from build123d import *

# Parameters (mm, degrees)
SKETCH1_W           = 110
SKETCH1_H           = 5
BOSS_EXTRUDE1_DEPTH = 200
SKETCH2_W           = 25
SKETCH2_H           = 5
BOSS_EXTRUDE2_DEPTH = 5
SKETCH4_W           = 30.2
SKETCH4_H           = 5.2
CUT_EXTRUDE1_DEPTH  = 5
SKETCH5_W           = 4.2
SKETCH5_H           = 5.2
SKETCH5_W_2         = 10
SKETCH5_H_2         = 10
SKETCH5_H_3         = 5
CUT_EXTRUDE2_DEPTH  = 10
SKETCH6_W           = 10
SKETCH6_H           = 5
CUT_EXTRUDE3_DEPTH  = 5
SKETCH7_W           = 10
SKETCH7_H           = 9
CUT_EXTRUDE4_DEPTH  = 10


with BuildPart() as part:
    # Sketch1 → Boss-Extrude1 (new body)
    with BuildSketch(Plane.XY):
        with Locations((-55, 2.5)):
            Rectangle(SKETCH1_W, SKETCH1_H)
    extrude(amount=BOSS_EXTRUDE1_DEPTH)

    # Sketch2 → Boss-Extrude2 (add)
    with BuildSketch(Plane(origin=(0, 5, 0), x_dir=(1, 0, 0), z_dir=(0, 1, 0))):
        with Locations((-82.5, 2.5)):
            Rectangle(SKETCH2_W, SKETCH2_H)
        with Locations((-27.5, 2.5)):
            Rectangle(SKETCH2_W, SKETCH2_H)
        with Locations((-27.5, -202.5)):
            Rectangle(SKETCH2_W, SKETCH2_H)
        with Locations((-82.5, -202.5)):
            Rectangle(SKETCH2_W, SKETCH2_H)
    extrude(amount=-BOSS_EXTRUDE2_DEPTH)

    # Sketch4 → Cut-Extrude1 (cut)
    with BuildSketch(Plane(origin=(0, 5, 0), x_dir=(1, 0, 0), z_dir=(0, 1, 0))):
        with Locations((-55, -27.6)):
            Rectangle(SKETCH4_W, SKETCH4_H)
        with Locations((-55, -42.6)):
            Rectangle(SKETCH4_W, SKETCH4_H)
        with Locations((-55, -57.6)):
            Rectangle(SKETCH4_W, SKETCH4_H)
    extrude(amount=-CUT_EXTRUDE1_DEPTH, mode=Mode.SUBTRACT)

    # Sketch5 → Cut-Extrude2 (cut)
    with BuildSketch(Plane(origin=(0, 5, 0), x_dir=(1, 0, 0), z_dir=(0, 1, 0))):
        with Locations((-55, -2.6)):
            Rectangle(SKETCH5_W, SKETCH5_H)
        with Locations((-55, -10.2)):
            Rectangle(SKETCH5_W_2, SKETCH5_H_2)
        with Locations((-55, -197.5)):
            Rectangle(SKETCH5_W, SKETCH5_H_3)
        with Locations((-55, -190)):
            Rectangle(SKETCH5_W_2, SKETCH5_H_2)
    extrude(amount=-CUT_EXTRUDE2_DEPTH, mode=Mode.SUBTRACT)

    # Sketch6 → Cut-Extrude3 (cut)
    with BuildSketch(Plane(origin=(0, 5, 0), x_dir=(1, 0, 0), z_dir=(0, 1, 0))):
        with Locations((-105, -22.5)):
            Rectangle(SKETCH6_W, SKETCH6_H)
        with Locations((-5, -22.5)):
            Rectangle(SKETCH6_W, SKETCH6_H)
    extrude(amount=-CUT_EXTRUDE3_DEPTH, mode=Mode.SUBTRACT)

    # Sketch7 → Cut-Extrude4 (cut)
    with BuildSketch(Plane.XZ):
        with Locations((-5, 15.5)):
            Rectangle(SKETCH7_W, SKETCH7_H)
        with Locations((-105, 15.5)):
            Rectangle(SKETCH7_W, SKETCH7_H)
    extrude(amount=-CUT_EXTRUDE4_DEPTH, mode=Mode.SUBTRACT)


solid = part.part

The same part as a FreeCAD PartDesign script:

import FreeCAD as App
import Part
import Sketcher
Q = App.Units.Quantity

doc = App.newDocument("Part")
body = doc.addObject("PartDesign::Body", "Body")

sketch1 = doc.addObject("Sketcher::SketchObject", "Sketch")
body.addObject(sketch1)
sketch1.AttachmentSupport = (doc.XY_Plane, [""])
sketch1.MapMode = "FlatFace"
sketch1.addGeometry(Part.LineSegment(App.Vector(-110, 5, 0), App.Vector(-110, 0, 0)), False)
sketch1.addGeometry(Part.LineSegment(App.Vector(-110, 0, 0), App.Vector(0, 0, 0)), False)
sketch1.addGeometry(Part.LineSegment(App.Vector(0, 0, 0), App.Vector(0, 5, 0)), False)
sketch1.addGeometry(Part.LineSegment(App.Vector(0, 5, 0), App.Vector(-110, 5, 0)), False)
sketch1.addConstraint(Sketcher.Constraint("Coincident", 0, 2, 1, 1))
sketch1.addConstraint(Sketcher.Constraint("Coincident", 1, 2, 2, 1))
sketch1.addConstraint(Sketcher.Constraint("Coincident", 2, 2, 3, 1))
sketch1.addConstraint(Sketcher.Constraint("Coincident", 3, 2, 0, 1))
sketch1.addConstraint(Sketcher.Constraint("Vertical", 0))
sketch1.addConstraint(Sketcher.Constraint("Horizontal", 1))
sketch1.addConstraint(Sketcher.Constraint("Vertical", 2))
sketch1.addConstraint(Sketcher.Constraint("Horizontal", 3))
sketch1.addConstraint(Sketcher.Constraint("Coincident", 1, 2, -1, 1))
sketch1.addConstraint(Sketcher.Constraint("DistanceX", 1, 1, 1, 2, Q("110 mm")))
sketch1.addConstraint(Sketcher.Constraint("DistanceY", 0, 2, 0, 1, Q("5 mm")))
pad1 = doc.addObject("PartDesign::Pad", "Pad")
body.addObject(pad1)
pad1.Profile = sketch1
pad1.Length = 200

sketch2 = doc.addObject("Sketcher::SketchObject", "Sketch001")
body.addObject(sketch2)
sketch2.AttachmentSupport = (doc.XZ_Plane, [""])
sketch2.MapMode = "FlatFace"
sketch2.AttachmentOffset = App.Placement(App.Vector(0, 0, -5), App.Rotation())
sketch2.addGeometry(Part.LineSegment(App.Vector(-95, -5, 0), App.Vector(-95, 0, 0)), False)
sketch2.addGeometry(Part.LineSegment(App.Vector(-95, 0, 0), App.Vector(-70, 0, 0)), False)
sketch2.addGeometry(Part.LineSegment(App.Vector(-70, 0, 0), App.Vector(-70, -5, 0)), False)
sketch2.addGeometry(Part.LineSegment(App.Vector(-70, -5, 0), App.Vector(-95, -5, 0)), False)
sketch2.addGeometry(Part.LineSegment(App.Vector(-40, -5, 0), App.Vector(-40, 0, 0)), False)
sketch2.addGeometry(Part.LineSegment(App.Vector(-40, 0, 0), App.Vector(-15, 0, 0)), False)
sketch2.addGeometry(Part.LineSegment(App.Vector(-15, 0, 0), App.Vector(-15, -5, 0)), False)
sketch2.addGeometry(Part.LineSegment(App.Vector(-15, -5, 0), App.Vector(-40, -5, 0)), False)
sketch2.addGeometry(Part.LineSegment(App.Vector(-40, 200, 0), App.Vector(-40, 205, 0)), False)
sketch2.addGeometry(Part.LineSegment(App.Vector(-40, 205, 0), App.Vector(-15, 205, 0)), False)
sketch2.addGeometry(Part.LineSegment(App.Vector(-15, 205, 0), App.Vector(-15, 200, 0)), False)
sketch2.addGeometry(Part.LineSegment(App.Vector(-15, 200, 0), App.Vector(-40, 200, 0)), False)
sketch2.addGeometry(Part.LineSegment(App.Vector(-95, 200, 0), App.Vector(-95, 205, 0)), False)
sketch2.addGeometry(Part.LineSegment(App.Vector(-95, 205, 0), App.Vector(-70, 205, 0)), False)
sketch2.addGeometry(Part.LineSegment(App.Vector(-70, 205, 0), App.Vector(-70, 200, 0)), False)
sketch2.addGeometry(Part.LineSegment(App.Vector(-70, 200, 0), App.Vector(-95, 200, 0)), False)
sketch2.addConstraint(Sketcher.Constraint("Coincident", 0, 2, 1, 1))
sketch2.addConstraint(Sketcher.Constraint("Coincident", 1, 2, 2, 1))
sketch2.addConstraint(Sketcher.Constraint("Coincident", 2, 2, 3, 1))
sketch2.addConstraint(Sketcher.Constraint("Coincident", 3, 2, 0, 1))
sketch2.addConstraint(Sketcher.Constraint("Coincident", 4, 2, 5, 1))
sketch2.addConstraint(Sketcher.Constraint("Coincident", 5, 2, 6, 1))
sketch2.addConstraint(Sketcher.Constraint("Coincident", 6, 2, 7, 1))
sketch2.addConstraint(Sketcher.Constraint("Coincident", 7, 2, 4, 1))
sketch2.addConstraint(Sketcher.Constraint("Coincident", 8, 2, 9, 1))
sketch2.addConstraint(Sketcher.Constraint("Coincident", 9, 2, 10, 1))
sketch2.addConstraint(Sketcher.Constraint("Coincident", 10, 2, 11, 1))
sketch2.addConstraint(Sketcher.Constraint("Coincident", 11, 2, 8, 1))
sketch2.addConstraint(Sketcher.Constraint("Coincident", 12, 2, 13, 1))
sketch2.addConstraint(Sketcher.Constraint("Coincident", 13, 2, 14, 1))
sketch2.addConstraint(Sketcher.Constraint("Coincident", 14, 2, 15, 1))
sketch2.addConstraint(Sketcher.Constraint("Coincident", 15, 2, 12, 1))
sketch2.addConstraint(Sketcher.Constraint("Vertical", 0))
sketch2.addConstraint(Sketcher.Constraint("Horizontal", 1))
sketch2.addConstraint(Sketcher.Constraint("Vertical", 2))
sketch2.addConstraint(Sketcher.Constraint("Horizontal", 3))
sketch2.addConstraint(Sketcher.Constraint("Vertical", 4))
sketch2.addConstraint(Sketcher.Constraint("Horizontal", 5))
sketch2.addConstraint(Sketcher.Constraint("Vertical", 6))
sketch2.addConstraint(Sketcher.Constraint("Horizontal", 7))
sketch2.addConstraint(Sketcher.Constraint("Vertical", 8))
sketch2.addConstraint(Sketcher.Constraint("Horizontal", 9))
sketch2.addConstraint(Sketcher.Constraint("Vertical", 10))
sketch2.addConstraint(Sketcher.Constraint("Horizontal", 11))
sketch2.addConstraint(Sketcher.Constraint("Vertical", 12))
sketch2.addConstraint(Sketcher.Constraint("Horizontal", 13))
sketch2.addConstraint(Sketcher.Constraint("Vertical", 14))
sketch2.addConstraint(Sketcher.Constraint("Horizontal", 15))
sketch2.addConstraint(Sketcher.Constraint("PointOnObject", 0, 2, -1))
sketch2.addConstraint(Sketcher.Constraint("PointOnObject", 4, 2, -1))
sketch2.addConstraint(Sketcher.Constraint("Horizontal", 3, 2, 6, 2))
sketch2.addConstraint(Sketcher.Constraint("Horizontal", 9, 2, 12, 2))
sketch2.addConstraint(Sketcher.Constraint("Horizontal", 11, 2, 14, 2))
sketch2.addConstraint(Sketcher.Constraint("Vertical", 7, 2, 8, 2))
sketch2.addConstraint(Sketcher.Constraint("Vertical", 6, 2, 9, 2))
sketch2.addConstraint(Sketcher.Constraint("Vertical", 3, 2, 12, 2))
sketch2.addConstraint(Sketcher.Constraint("Vertical", 2, 2, 13, 2))
sketch2.addConstraint(Sketcher.Constraint("Equal", 3, 5))
sketch2.addConstraint(Sketcher.Constraint("Equal", 6, 8))
sketch2.addConstraint(Sketcher.Constraint("DistanceX", 1, 1, 1, 2, Q("25 mm")))
sketch2.addConstraint(Sketcher.Constraint("DistanceY", 0, 1, 0, 2, Q("5 mm")))
sketch2.addConstraint(Sketcher.Constraint("DistanceX", 0, 2, -1, 1, Q("95 mm")))
sketch2.addConstraint(Sketcher.Constraint("DistanceX", 4, 2, -1, 1, Q("40 mm")))
sketch2.addConstraint(Sketcher.Constraint("DistanceY", -1, 1, 8, 2, Q("205 mm")))
pad2 = doc.addObject("PartDesign::Pad", "Pad001")
body.addObject(pad2)
pad2.Profile = sketch2
pad2.Length = 5

sketch3 = doc.addObject("Sketcher::SketchObject", "Sketch002")
body.addObject(sketch3)
sketch3.AttachmentSupport = (doc.XZ_Plane, [""])
sketch3.MapMode = "FlatFace"
sketch3.AttachmentOffset = App.Placement(App.Vector(0, 0, -5), App.Rotation())
sketch3.addGeometry(Part.LineSegment(App.Vector(-70, 25, 0), App.Vector(-70, 30, 0)), False)
sketch3.addGeometry(Part.LineSegment(App.Vector(-70, 30, 0), App.Vector(-40, 30, 0)), False)
sketch3.addGeometry(Part.LineSegment(App.Vector(-40, 30, 0), App.Vector(-40, 25, 0)), False)
sketch3.addGeometry(Part.LineSegment(App.Vector(-40, 25, 0), App.Vector(-70, 25, 0)), False)
sketch3.addGeometry(Part.LineSegment(App.Vector(-70, 40, 0), App.Vector(-70, 45, 0)), False)
sketch3.addGeometry(Part.LineSegment(App.Vector(-70, 45, 0), App.Vector(-40, 45, 0)), False)
sketch3.addGeometry(Part.LineSegment(App.Vector(-40, 45, 0), App.Vector(-40, 40, 0)), False)
sketch3.addGeometry(Part.LineSegment(App.Vector(-40, 40, 0), App.Vector(-70, 40, 0)), False)
sketch3.addGeometry(Part.LineSegment(App.Vector(-70, 55, 0), App.Vector(-70, 60, 0)), False)
sketch3.addGeometry(Part.LineSegment(App.Vector(-70, 60, 0), App.Vector(-40, 60, 0)), False)
sketch3.addGeometry(Part.LineSegment(App.Vector(-40, 60, 0), App.Vector(-40, 55, 0)), False)
sketch3.addGeometry(Part.LineSegment(App.Vector(-40, 55, 0), App.Vector(-70, 55, 0)), False)
sketch3.addConstraint(Sketcher.Constraint("Coincident", 0, 2, 1, 1))
sketch3.addConstraint(Sketcher.Constraint("Coincident", 1, 2, 2, 1))
sketch3.addConstraint(Sketcher.Constraint("Coincident", 2, 2, 3, 1))
sketch3.addConstraint(Sketcher.Constraint("Coincident", 3, 2, 0, 1))
sketch3.addConstraint(Sketcher.Constraint("Coincident", 4, 2, 5, 1))
sketch3.addConstraint(Sketcher.Constraint("Coincident", 5, 2, 6, 1))
sketch3.addConstraint(Sketcher.Constraint("Coincident", 6, 2, 7, 1))
sketch3.addConstraint(Sketcher.Constraint("Coincident", 7, 2, 4, 1))
sketch3.addConstraint(Sketcher.Constraint("Coincident", 8, 2, 9, 1))
sketch3.addConstraint(Sketcher.Constraint("Coincident", 9, 2, 10, 1))
sketch3.addConstraint(Sketcher.Constraint("Coincident", 10, 2, 11, 1))
sketch3.addConstraint(Sketcher.Constraint("Coincident", 11, 2, 8, 1))
sketch3.addConstraint(Sketcher.Constraint("Vertical", 0))
sketch3.addConstraint(Sketcher.Constraint("Horizontal", 1))
sketch3.addConstraint(Sketcher.Constraint("Vertical", 2))
sketch3.addConstraint(Sketcher.Constraint("Horizontal", 3))
sketch3.addConstraint(Sketcher.Constraint("Vertical", 4))
sketch3.addConstraint(Sketcher.Constraint("Horizontal", 5))
sketch3.addConstraint(Sketcher.Constraint("Vertical", 6))
sketch3.addConstraint(Sketcher.Constraint("Horizontal", 7))
sketch3.addConstraint(Sketcher.Constraint("Vertical", 8))
sketch3.addConstraint(Sketcher.Constraint("Horizontal", 9))
sketch3.addConstraint(Sketcher.Constraint("Vertical", 10))
sketch3.addConstraint(Sketcher.Constraint("Horizontal", 11))
sketch3.addConstraint(Sketcher.Constraint("Vertical", 3, 2, 4, 2))
sketch3.addConstraint(Sketcher.Constraint("Vertical", 2, 2, 5, 2))
sketch3.addConstraint(Sketcher.Constraint("Vertical", 7, 2, 8, 2))
sketch3.addConstraint(Sketcher.Constraint("Vertical", 6, 2, 9, 2))
sketch3.addConstraint(Sketcher.Constraint("Equal", 2, 4))
sketch3.addConstraint(Sketcher.Constraint("Equal", 6, 8))
sketch3.addConstraint(Sketcher.Constraint("DistanceX", 1, 1, 1, 2, Q("30.2 mm")))
sketch3.addConstraint(Sketcher.Constraint("DistanceY", 0, 1, 0, 2, Q("5.2 mm")))
sketch3.addConstraint(Sketcher.Constraint("DistanceY", -1, 1, 2, 2, Q("25 mm")))
sketch3.addConstraint(Sketcher.Constraint("DistanceY", -1, 1, 6, 2, Q("40 mm")))
sketch3.addConstraint(Sketcher.Constraint("DistanceY", -1, 1, 10, 2, Q("55 mm")))
sketch3.addConstraint(Sketcher.Constraint("DistanceX", 0, 2, -1, 1, Q("70.1 mm")))
pocket1 = doc.addObject("PartDesign::Pocket", "Pocket")
body.addObject(pocket1)
pocket1.Profile = sketch3
pocket1.Length = 5
pocket1.Reversed = True

sketch4 = doc.addObject("Sketcher::SketchObject", "Sketch003")
body.addObject(sketch4)
sketch4.AttachmentSupport = (doc.XZ_Plane, [""])
sketch4.MapMode = "FlatFace"
sketch4.AttachmentOffset = App.Placement(App.Vector(0, 0, -5), App.Rotation())
sketch4.addGeometry(Part.LineSegment(App.Vector(-57.1, 0, 0), App.Vector(-57.1, 5.2, 0)), False)
sketch4.addGeometry(Part.LineSegment(App.Vector(-57.1, 5.2, 0), App.Vector(-60, 5.2, 0)), False)
sketch4.addGeometry(Part.LineSegment(App.Vector(-60, 5.2, 0), App.Vector(-60, 15.2, 0)), False)
sketch4.addGeometry(Part.LineSegment(App.Vector(-60, 15.2, 0), App.Vector(-50, 15.2, 0)), False)
sketch4.addGeometry(Part.LineSegment(App.Vector(-50, 15.2, 0), App.Vector(-50, 5.2, 0)), False)
sketch4.addGeometry(Part.LineSegment(App.Vector(-50, 5.2, 0), App.Vector(-52.9, 5.2, 0)), False)
sketch4.addGeometry(Part.LineSegment(App.Vector(-52.9, 5.2, 0), App.Vector(-52.9, 0, 0)), False)
sketch4.addGeometry(Part.LineSegment(App.Vector(-52.9, 0, 0), App.Vector(-57.1, 0, 0)), False)
sketch4.addGeometry(Part.LineSegment(App.Vector(-57.1, 195, 0), App.Vector(-57.1, 200, 0)), False)
sketch4.addGeometry(Part.LineSegment(App.Vector(-57.1, 200, 0), App.Vector(-52.9, 200, 0)), False)
sketch4.addGeometry(Part.LineSegment(App.Vector(-52.9, 200, 0), App.Vector(-52.9, 195, 0)), False)
sketch4.addGeometry(Part.LineSegment(App.Vector(-52.9, 195, 0), App.Vector(-50, 195, 0)), False)
sketch4.addGeometry(Part.LineSegment(App.Vector(-50, 195, 0), App.Vector(-50, 185, 0)), False)
sketch4.addGeometry(Part.LineSegment(App.Vector(-50, 185, 0), App.Vector(-60, 185, 0)), False)
sketch4.addGeometry(Part.LineSegment(App.Vector(-60, 185, 0), App.Vector(-60, 195, 0)), False)
sketch4.addGeometry(Part.LineSegment(App.Vector(-60, 195, 0), App.Vector(-57.1, 195, 0)), False)
sketch4.addConstraint(Sketcher.Constraint("Coincident", 0, 2, 1, 1))
sketch4.addConstraint(Sketcher.Constraint("Coincident", 1, 2, 2, 1))
sketch4.addConstraint(Sketcher.Constraint("Coincident", 2, 2, 3, 1))
sketch4.addConstraint(Sketcher.Constraint("Coincident", 3, 2, 4, 1))
sketch4.addConstraint(Sketcher.Constraint("Coincident", 4, 2, 5, 1))
sketch4.addConstraint(Sketcher.Constraint("Coincident", 5, 2, 6, 1))
sketch4.addConstraint(Sketcher.Constraint("Coincident", 6, 2, 7, 1))
sketch4.addConstraint(Sketcher.Constraint("Coincident", 7, 2, 0, 1))
sketch4.addConstraint(Sketcher.Constraint("Coincident", 8, 2, 9, 1))
sketch4.addConstraint(Sketcher.Constraint("Coincident", 9, 2, 10, 1))
sketch4.addConstraint(Sketcher.Constraint("Coincident", 10, 2, 11, 1))
sketch4.addConstraint(Sketcher.Constraint("Coincident", 11, 2, 12, 1))
sketch4.addConstraint(Sketcher.Constraint("Coincident", 12, 2, 13, 1))
sketch4.addConstraint(Sketcher.Constraint("Coincident", 13, 2, 14, 1))
sketch4.addConstraint(Sketcher.Constraint("Coincident", 14, 2, 15, 1))
sketch4.addConstraint(Sketcher.Constraint("Coincident", 15, 2, 8, 1))
sketch4.addConstraint(Sketcher.Constraint("Vertical", 0))
sketch4.addConstraint(Sketcher.Constraint("Horizontal", 1))
sketch4.addConstraint(Sketcher.Constraint("Vertical", 2))
sketch4.addConstraint(Sketcher.Constraint("Horizontal", 3))
sketch4.addConstraint(Sketcher.Constraint("Vertical", 4))
sketch4.addConstraint(Sketcher.Constraint("Horizontal", 5))
sketch4.addConstraint(Sketcher.Constraint("Vertical", 6))
sketch4.addConstraint(Sketcher.Constraint("Horizontal", 7))
sketch4.addConstraint(Sketcher.Constraint("Vertical", 8))
sketch4.addConstraint(Sketcher.Constraint("Horizontal", 9))
sketch4.addConstraint(Sketcher.Constraint("Vertical", 10))
sketch4.addConstraint(Sketcher.Constraint("Horizontal", 11))
sketch4.addConstraint(Sketcher.Constraint("Vertical", 12))
sketch4.addConstraint(Sketcher.Constraint("Horizontal", 13))
sketch4.addConstraint(Sketcher.Constraint("Vertical", 14))
sketch4.addConstraint(Sketcher.Constraint("Horizontal", 15))
sketch4.addConstraint(Sketcher.Constraint("PointOnObject", 6, 2, -1))
sketch4.addConstraint(Sketcher.Constraint("Horizontal", 1, 2, 4, 2))
sketch4.addConstraint(Sketcher.Constraint("Horizontal", 11, 2, 14, 2))
sketch4.addConstraint(Sketcher.Constraint("Vertical", 7, 2, 8, 2))
sketch4.addConstraint(Sketcher.Constraint("Vertical", 6, 2, 9, 2))
sketch4.addConstraint(Sketcher.Constraint("Vertical", 4, 2, 11, 2))
sketch4.addConstraint(Sketcher.Constraint("Vertical", 2, 2, 13, 2))
sketch4.addConstraint(Sketcher.Constraint("Equal", 1, 5))
sketch4.addConstraint(Sketcher.Constraint("Equal", 13, 2))
sketch4.addConstraint(Sketcher.Constraint("Equal", 4, 12))
sketch4.addConstraint(Sketcher.Constraint("DistanceX", 3, 1, 3, 2, Q("10 mm")))
sketch4.addConstraint(Sketcher.Constraint("DistanceY", 8, 1, 8, 2, Q("5 mm")))
sketch4.addConstraint(Sketcher.Constraint("DistanceX", 1, 2, 1, 1, Q("2.9 mm")))
sketch4.addConstraint(Sketcher.Constraint("DistanceY", 0, 1, 0, 2, Q("5.2 mm")))
sketch4.addConstraint(Sketcher.Constraint("DistanceX", 1, 2, -1, 1, Q("60 mm")))
sketch4.addConstraint(Sketcher.Constraint("DistanceY", -1, 1, 8, 2, Q("200 mm")))
pocket2 = doc.addObject("PartDesign::Pocket", "Pocket001")
body.addObject(pocket2)
pocket2.Profile = sketch4
pocket2.Length = 10
pocket2.Reversed = True

sketch5 = doc.addObject("Sketcher::SketchObject", "Sketch004")
body.addObject(sketch5)
sketch5.AttachmentSupport = (doc.XZ_Plane, [""])
sketch5.MapMode = "FlatFace"
sketch5.AttachmentOffset = App.Placement(App.Vector(0, 0, -5), App.Rotation())
sketch5.addGeometry(Part.LineSegment(App.Vector(-110, 20, 0), App.Vector(-110, 25, 0)), False)
sketch5.addGeometry(Part.LineSegment(App.Vector(-110, 25, 0), App.Vector(-100, 25, 0)), False)
sketch5.addGeometry(Part.LineSegment(App.Vector(-100, 25, 0), App.Vector(-100, 20, 0)), False)
sketch5.addGeometry(Part.LineSegment(App.Vector(-100, 20, 0), App.Vector(-110, 20, 0)), False)
sketch5.addGeometry(Part.LineSegment(App.Vector(-10, 20, 0), App.Vector(-10, 25, 0)), False)
sketch5.addGeometry(Part.LineSegment(App.Vector(-10, 25, 0), App.Vector(0, 25, 0)), False)
sketch5.addGeometry(Part.LineSegment(App.Vector(0, 25, 0), App.Vector(0, 20, 0)), False)
sketch5.addGeometry(Part.LineSegment(App.Vector(0, 20, 0), App.Vector(-10, 20, 0)), False)
sketch5.addConstraint(Sketcher.Constraint("Coincident", 0, 2, 1, 1))
sketch5.addConstraint(Sketcher.Constraint("Coincident", 1, 2, 2, 1))
sketch5.addConstraint(Sketcher.Constraint("Coincident", 2, 2, 3, 1))
sketch5.addConstraint(Sketcher.Constraint("Coincident", 3, 2, 0, 1))
sketch5.addConstraint(Sketcher.Constraint("Coincident", 4, 2, 5, 1))
sketch5.addConstraint(Sketcher.Constraint("Coincident", 5, 2, 6, 1))
sketch5.addConstraint(Sketcher.Constraint("Coincident", 6, 2, 7, 1))
sketch5.addConstraint(Sketcher.Constraint("Coincident", 7, 2, 4, 1))
sketch5.addConstraint(Sketcher.Constraint("Vertical", 0))
sketch5.addConstraint(Sketcher.Constraint("Horizontal", 1))
sketch5.addConstraint(Sketcher.Constraint("Vertical", 2))
sketch5.addConstraint(Sketcher.Constraint("Horizontal", 3))
sketch5.addConstraint(Sketcher.Constraint("Vertical", 4))
sketch5.addConstraint(Sketcher.Constraint("Horizontal", 5))
sketch5.addConstraint(Sketcher.Constraint("Vertical", 6))
sketch5.addConstraint(Sketcher.Constraint("Horizontal", 7))
sketch5.addConstraint(Sketcher.Constraint("PointOnObject", 5, 2, -2))
sketch5.addConstraint(Sketcher.Constraint("Horizontal", 1, 2, 4, 2))
sketch5.addConstraint(Sketcher.Constraint("Horizontal", 3, 2, 6, 2))
sketch5.addConstraint(Sketcher.Constraint("Equal", 3, 5))
sketch5.addConstraint(Sketcher.Constraint("DistanceX", 1, 1, 1, 2, Q("10 mm")))
sketch5.addConstraint(Sketcher.Constraint("DistanceY", 0, 1, 0, 2, Q("5 mm")))
sketch5.addConstraint(Sketcher.Constraint("DistanceX", 0, 2, -1, 1, Q("110 mm")))
sketch5.addConstraint(Sketcher.Constraint("DistanceY", -1, 1, 0, 2, Q("25 mm")))
pocket3 = doc.addObject("PartDesign::Pocket", "Pocket002")
body.addObject(pocket3)
pocket3.Profile = sketch5
pocket3.Length = 5
pocket3.Reversed = True

sketch6 = doc.addObject("Sketcher::SketchObject", "Sketch005")
body.addObject(sketch6)
sketch6.AttachmentSupport = (doc.XZ_Plane, [""])
sketch6.MapMode = "FlatFace"
sketch6.addGeometry(Part.LineSegment(App.Vector(-10, 20, 0), App.Vector(-10, 11, 0)), False)
sketch6.addGeometry(Part.LineSegment(App.Vector(-10, 11, 0), App.Vector(0, 11, 0)), False)
sketch6.addGeometry(Part.LineSegment(App.Vector(0, 11, 0), App.Vector(0, 20, 0)), False)
sketch6.addGeometry(Part.LineSegment(App.Vector(0, 20, 0), App.Vector(-10, 20, 0)), False)
sketch6.addGeometry(Part.LineSegment(App.Vector(-110, 20, 0), App.Vector(-110, 11, 0)), False)
sketch6.addGeometry(Part.LineSegment(App.Vector(-110, 11, 0), App.Vector(-100, 11, 0)), False)
sketch6.addGeometry(Part.LineSegment(App.Vector(-100, 11, 0), App.Vector(-100, 20, 0)), False)
sketch6.addGeometry(Part.LineSegment(App.Vector(-100, 20, 0), App.Vector(-110, 20, 0)), False)
sketch6.addConstraint(Sketcher.Constraint("Coincident", 0, 2, 1, 1))
sketch6.addConstraint(Sketcher.Constraint("Coincident", 1, 2, 2, 1))
sketch6.addConstraint(Sketcher.Constraint("Coincident", 2, 2, 3, 1))
sketch6.addConstraint(Sketcher.Constraint("Coincident", 3, 2, 0, 1))
sketch6.addConstraint(Sketcher.Constraint("Coincident", 4, 2, 5, 1))
sketch6.addConstraint(Sketcher.Constraint("Coincident", 5, 2, 6, 1))
sketch6.addConstraint(Sketcher.Constraint("Coincident", 6, 2, 7, 1))
sketch6.addConstraint(Sketcher.Constraint("Coincident", 7, 2, 4, 1))
sketch6.addConstraint(Sketcher.Constraint("Vertical", 0))
sketch6.addConstraint(Sketcher.Constraint("Horizontal", 1))
sketch6.addConstraint(Sketcher.Constraint("Vertical", 2))
sketch6.addConstraint(Sketcher.Constraint("Horizontal", 3))
sketch6.addConstraint(Sketcher.Constraint("Vertical", 4))
sketch6.addConstraint(Sketcher.Constraint("Horizontal", 5))
sketch6.addConstraint(Sketcher.Constraint("Vertical", 6))
sketch6.addConstraint(Sketcher.Constraint("Horizontal", 7))
sketch6.addConstraint(Sketcher.Constraint("PointOnObject", 1, 2, -2))
sketch6.addConstraint(Sketcher.Constraint("Horizontal", 1, 2, 4, 2))
sketch6.addConstraint(Sketcher.Constraint("Horizontal", 3, 2, 6, 2))
sketch6.addConstraint(Sketcher.Constraint("Equal", 3, 5))
sketch6.addConstraint(Sketcher.Constraint("DistanceX", 1, 1, 1, 2, Q("10 mm")))
sketch6.addConstraint(Sketcher.Constraint("DistanceY", 0, 2, 0, 1, Q("9 mm")))
sketch6.addConstraint(Sketcher.Constraint("DistanceY", -1, 1, 0, 2, Q("11 mm")))
sketch6.addConstraint(Sketcher.Constraint("DistanceX", 4, 2, -1, 1, Q("110 mm")))
pocket4 = doc.addObject("PartDesign::Pocket", "Pocket003")
body.addObject(pocket4)
pocket4.Profile = sketch6
pocket4.Length = 10

doc.recompute()
